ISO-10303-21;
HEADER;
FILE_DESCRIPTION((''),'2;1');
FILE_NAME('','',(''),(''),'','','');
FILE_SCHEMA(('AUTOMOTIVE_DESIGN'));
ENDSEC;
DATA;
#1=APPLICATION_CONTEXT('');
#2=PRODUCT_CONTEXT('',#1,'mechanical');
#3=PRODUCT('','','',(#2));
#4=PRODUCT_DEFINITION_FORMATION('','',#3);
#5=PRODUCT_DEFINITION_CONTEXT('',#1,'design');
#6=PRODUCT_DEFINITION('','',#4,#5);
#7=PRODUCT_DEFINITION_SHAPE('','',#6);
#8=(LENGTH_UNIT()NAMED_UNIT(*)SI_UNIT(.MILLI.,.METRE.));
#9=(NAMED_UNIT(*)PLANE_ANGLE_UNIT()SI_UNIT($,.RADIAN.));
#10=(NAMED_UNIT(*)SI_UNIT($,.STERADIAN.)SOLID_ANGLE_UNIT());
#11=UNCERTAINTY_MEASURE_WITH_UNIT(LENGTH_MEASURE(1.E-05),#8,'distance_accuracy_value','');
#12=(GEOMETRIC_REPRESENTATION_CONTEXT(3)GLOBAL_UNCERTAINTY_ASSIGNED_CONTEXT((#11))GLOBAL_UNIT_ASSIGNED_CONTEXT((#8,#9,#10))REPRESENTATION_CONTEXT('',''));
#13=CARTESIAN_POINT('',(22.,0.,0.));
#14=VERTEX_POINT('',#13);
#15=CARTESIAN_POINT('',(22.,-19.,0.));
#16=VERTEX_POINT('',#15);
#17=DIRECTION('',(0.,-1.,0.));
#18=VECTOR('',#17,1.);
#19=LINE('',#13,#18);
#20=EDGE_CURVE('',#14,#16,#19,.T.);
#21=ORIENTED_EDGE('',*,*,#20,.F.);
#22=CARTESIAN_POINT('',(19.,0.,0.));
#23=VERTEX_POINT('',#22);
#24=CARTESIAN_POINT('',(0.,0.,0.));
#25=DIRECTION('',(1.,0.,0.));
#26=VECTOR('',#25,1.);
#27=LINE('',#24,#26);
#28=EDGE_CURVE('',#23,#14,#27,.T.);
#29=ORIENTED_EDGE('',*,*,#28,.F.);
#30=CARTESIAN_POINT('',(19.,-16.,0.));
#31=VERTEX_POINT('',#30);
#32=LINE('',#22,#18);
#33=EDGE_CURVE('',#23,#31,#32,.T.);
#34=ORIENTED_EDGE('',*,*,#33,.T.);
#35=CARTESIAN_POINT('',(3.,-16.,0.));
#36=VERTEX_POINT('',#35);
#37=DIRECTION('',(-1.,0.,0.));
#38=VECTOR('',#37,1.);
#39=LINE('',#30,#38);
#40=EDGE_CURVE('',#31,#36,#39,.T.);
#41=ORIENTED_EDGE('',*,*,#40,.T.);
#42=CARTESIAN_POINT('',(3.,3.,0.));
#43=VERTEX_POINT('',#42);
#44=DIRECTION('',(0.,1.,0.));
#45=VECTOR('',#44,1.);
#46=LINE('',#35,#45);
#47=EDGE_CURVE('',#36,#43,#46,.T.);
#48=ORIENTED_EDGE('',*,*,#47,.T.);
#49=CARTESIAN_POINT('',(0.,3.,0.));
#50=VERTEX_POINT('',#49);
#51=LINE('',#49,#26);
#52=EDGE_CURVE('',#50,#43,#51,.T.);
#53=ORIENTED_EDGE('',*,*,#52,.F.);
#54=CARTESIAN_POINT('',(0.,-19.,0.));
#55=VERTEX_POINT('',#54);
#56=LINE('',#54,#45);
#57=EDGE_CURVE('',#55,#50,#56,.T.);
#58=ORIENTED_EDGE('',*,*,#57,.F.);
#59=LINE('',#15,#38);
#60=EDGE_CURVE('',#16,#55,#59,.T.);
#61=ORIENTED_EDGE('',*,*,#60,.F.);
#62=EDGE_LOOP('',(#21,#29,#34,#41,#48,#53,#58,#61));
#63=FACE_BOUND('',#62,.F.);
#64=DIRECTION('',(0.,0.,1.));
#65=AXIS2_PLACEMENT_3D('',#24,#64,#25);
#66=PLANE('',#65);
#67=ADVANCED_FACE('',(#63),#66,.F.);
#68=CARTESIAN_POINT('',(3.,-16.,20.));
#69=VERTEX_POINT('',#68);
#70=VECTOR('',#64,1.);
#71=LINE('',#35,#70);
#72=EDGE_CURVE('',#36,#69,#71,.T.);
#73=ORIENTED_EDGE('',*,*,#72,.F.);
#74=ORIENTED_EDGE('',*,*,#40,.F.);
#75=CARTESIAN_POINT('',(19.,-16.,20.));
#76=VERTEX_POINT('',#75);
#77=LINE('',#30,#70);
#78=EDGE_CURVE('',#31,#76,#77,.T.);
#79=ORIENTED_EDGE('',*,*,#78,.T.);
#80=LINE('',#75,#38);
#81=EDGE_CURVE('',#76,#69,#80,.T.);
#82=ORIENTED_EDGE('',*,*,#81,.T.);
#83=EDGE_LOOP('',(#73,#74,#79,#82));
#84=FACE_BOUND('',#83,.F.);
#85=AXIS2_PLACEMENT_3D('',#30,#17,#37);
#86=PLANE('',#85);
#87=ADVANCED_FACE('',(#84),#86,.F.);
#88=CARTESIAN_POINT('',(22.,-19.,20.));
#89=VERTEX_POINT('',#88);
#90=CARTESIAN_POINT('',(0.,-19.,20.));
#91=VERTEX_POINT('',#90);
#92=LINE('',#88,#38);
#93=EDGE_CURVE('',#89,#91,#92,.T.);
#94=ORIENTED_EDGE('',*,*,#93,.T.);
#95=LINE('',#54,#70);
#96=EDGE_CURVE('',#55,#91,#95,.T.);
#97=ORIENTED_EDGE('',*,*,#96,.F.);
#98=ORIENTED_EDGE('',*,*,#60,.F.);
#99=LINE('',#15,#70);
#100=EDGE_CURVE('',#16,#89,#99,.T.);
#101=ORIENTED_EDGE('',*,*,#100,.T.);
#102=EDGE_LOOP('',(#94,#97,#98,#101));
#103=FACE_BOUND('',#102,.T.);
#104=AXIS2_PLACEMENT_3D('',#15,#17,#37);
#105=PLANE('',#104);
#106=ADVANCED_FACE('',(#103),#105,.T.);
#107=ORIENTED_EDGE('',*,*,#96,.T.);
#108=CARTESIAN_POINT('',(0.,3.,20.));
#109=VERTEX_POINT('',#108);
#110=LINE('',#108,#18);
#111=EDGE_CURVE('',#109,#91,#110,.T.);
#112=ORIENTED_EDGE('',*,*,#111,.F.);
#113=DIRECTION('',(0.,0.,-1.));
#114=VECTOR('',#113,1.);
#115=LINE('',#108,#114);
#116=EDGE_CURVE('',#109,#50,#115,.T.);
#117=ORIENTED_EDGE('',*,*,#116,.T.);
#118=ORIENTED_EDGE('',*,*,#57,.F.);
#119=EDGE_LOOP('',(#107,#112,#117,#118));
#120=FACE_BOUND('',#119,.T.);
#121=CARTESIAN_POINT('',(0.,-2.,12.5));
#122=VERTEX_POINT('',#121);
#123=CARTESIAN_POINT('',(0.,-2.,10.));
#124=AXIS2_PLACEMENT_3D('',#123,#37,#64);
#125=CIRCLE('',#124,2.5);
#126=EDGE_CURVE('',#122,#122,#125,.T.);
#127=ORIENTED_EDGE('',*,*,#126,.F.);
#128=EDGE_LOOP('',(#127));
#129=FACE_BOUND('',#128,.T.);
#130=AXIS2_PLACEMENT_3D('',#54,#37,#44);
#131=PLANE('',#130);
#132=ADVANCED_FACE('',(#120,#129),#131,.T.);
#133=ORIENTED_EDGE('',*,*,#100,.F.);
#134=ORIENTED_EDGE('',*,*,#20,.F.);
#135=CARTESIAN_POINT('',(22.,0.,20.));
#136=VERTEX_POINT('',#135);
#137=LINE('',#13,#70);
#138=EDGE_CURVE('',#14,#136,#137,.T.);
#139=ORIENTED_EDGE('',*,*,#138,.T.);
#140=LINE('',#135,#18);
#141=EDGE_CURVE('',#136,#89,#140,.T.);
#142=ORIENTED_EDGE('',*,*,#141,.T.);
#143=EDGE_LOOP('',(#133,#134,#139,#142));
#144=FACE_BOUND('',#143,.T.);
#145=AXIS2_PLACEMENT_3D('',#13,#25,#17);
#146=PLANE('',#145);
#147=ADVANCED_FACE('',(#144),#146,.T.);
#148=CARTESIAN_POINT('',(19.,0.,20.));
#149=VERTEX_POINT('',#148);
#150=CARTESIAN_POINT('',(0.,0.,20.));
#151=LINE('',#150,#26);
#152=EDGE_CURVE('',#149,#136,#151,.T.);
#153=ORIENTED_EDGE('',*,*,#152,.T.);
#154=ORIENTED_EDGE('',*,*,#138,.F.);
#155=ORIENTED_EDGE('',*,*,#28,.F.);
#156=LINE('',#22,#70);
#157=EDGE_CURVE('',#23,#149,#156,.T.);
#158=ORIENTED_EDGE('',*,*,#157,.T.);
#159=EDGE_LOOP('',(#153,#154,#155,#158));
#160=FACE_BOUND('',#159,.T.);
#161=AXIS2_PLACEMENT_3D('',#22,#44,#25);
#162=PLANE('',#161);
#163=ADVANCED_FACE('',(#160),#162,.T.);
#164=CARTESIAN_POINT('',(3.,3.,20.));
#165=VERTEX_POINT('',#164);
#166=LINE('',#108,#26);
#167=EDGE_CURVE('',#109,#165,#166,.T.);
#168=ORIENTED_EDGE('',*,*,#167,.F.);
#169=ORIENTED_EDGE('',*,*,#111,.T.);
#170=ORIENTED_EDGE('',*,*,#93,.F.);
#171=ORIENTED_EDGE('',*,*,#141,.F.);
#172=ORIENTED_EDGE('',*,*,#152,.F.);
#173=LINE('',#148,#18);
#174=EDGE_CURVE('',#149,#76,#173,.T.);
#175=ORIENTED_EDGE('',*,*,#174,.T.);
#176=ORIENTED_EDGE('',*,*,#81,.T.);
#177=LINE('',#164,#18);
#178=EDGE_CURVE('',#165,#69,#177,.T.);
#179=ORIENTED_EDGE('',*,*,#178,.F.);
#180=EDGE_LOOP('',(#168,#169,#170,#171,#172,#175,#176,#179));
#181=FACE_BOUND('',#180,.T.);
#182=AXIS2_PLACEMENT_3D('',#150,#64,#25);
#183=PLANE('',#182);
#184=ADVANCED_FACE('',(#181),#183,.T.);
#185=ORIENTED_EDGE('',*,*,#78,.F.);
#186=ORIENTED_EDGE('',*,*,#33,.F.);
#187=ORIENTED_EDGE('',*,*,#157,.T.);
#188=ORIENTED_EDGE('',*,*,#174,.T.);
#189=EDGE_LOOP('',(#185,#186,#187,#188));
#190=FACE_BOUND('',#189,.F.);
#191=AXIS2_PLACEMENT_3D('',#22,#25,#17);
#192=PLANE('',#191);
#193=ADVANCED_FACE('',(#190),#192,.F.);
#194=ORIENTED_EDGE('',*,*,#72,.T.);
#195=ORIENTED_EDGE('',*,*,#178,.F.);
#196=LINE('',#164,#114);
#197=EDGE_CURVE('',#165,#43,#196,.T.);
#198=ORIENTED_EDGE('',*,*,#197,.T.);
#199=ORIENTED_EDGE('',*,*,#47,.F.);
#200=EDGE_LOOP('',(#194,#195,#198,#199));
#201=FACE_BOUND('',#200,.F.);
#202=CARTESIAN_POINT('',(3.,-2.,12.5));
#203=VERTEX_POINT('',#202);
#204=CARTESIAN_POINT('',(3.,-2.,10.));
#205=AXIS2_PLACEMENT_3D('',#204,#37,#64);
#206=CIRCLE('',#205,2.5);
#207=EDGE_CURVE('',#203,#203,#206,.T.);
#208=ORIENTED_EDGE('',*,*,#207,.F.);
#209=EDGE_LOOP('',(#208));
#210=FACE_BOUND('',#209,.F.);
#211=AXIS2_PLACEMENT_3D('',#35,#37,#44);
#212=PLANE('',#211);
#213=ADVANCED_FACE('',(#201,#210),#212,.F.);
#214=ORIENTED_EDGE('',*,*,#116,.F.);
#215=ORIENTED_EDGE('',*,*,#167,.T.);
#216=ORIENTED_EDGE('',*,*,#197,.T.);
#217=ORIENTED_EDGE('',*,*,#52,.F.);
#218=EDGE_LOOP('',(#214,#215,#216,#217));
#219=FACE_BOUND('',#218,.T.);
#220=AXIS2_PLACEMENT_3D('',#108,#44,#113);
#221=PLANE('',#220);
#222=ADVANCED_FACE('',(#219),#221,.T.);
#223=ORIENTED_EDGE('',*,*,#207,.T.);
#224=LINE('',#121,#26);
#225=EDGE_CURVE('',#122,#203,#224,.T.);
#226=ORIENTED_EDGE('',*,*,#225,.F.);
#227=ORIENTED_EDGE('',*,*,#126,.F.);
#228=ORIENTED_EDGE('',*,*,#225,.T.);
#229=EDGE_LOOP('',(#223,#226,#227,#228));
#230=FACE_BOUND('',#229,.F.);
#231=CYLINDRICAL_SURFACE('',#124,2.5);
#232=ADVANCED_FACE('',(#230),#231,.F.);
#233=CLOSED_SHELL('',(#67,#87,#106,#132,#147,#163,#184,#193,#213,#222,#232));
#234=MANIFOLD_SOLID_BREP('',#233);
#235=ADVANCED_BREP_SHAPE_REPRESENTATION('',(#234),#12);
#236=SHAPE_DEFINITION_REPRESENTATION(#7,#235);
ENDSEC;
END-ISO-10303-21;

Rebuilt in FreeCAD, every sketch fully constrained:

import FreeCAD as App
import Part
import Sketcher

doc = App.newDocument("Part")
body = doc.addObject("PartDesign::Body", "Body")

sketch1 = body.newObject("Sketcher::SketchObject", "Sketch")
sketch1.AttachmentSupport = (doc.getObject("XY_Plane"), [""])
sketch1.MapMode = "FlatFace"
sketch1.addGeometry(Part.LineSegment(App.Vector(3, 0, 0), App.Vector(0, 0, 0)), False)
sketch1.addGeometry(Part.LineSegment(App.Vector(0, 0, 0), App.Vector(0, -19, 0)), False)
sketch1.addGeometry(Part.LineSegment(App.Vector(0, -19, 0), App.Vector(22, -19, 0)), False)
sketch1.addGeometry(Part.LineSegment(App.Vector(22, -19, 0), App.Vector(22, 0, 0)), False)
sketch1.addGeometry(Part.LineSegment(App.Vector(22, 0, 0), App.Vector(19, 0, 0)), False)
sketch1.addGeometry(Part.LineSegment(App.Vector(19, 0, 0), App.Vector(19, -16, 0)), False)
sketch1.addGeometry(Part.LineSegment(App.Vector(19, -16, 0), App.Vector(3, -16, 0)), False)
sketch1.addGeometry(Part.LineSegment(App.Vector(3, -16, 0), App.Vector(3, 0, 0)), False)
sketch1.addConstraint(Sketcher.Constraint("Coincident", 0, 2, 1, 1))
sketch1.addConstraint(Sketcher.Constraint("Coincident", 1, 2, 2, 1))
sketch1.addConstraint(Sketcher.Constraint("Coincident", 2, 2, 3, 1))
sketch1.addConstraint(Sketcher.Constraint("Coincident", 3, 2, 4, 1))
sketch1.addConstraint(Sketcher.Constraint("Coincident", 4, 2, 5, 1))
sketch1.addConstraint(Sketcher.Constraint("Coincident", 5, 2, 6, 1))
sketch1.addConstraint(Sketcher.Constraint("Coincident", 6, 2, 7, 1))
sketch1.addConstraint(Sketcher.Constraint("Coincident", 7, 2, 0, 1))
sketch1.addConstraint(Sketcher.Constraint("Horizontal", 0))
sketch1.addConstraint(Sketcher.Constraint("Vertical", 1))
sketch1.addConstraint(Sketcher.Constraint("Horizontal", 2))
sketch1.addConstraint(Sketcher.Constraint("Vertical", 3))
sketch1.addConstraint(Sketcher.Constraint("Horizontal", 4))
sketch1.addConstraint(Sketcher.Constraint("Vertical", 5))
sketch1.addConstraint(Sketcher.Constraint("Horizontal", 6))
sketch1.addConstraint(Sketcher.Constraint("Vertical", 7))
sketch1.addConstraint(Sketcher.Constraint("Coincident", 0, 2, -1, 1))
sketch1.addConstraint(Sketcher.Constraint("PointOnObject", 3, 2, -1))
sketch1.addConstraint(Sketcher.Constraint("Equal", 0, 4))
sketch1.addConstraint(Sketcher.Constraint("Equal", 6, 5))
sketch1.addConstraint(Sketcher.Constraint("DistanceX", 0, 2, 0, 1, 3.0))
sketch1.addConstraint(Sketcher.Constraint("DistanceX", 2, 1, 2, 2, 22.0))
sketch1.addConstraint(Sketcher.Constraint("DistanceY", 1, 2, 1, 1, 19.0))
pad1 = body.newObject("PartDesign::Pad", "Pad")
pad1.Profile = sketch1
pad1.Length = 20

sketch2 = body.newObject("Sketcher::SketchObject", "Sketch001")
sketch2.AttachmentSupport = (doc.getObject("YZ_Plane"), [""])
sketch2.MapMode = "FlatFace"
sketch2.addGeometry(Part.LineSegment(App.Vector(3, 0, 0), App.Vector(0, 0, 0)), False)
sketch2.addGeometry(Part.LineSegment(App.Vector(0, 0, 0), App.Vector(0, 20, 0)), False)
sketch2.addGeometry(Part.LineSegment(App.Vector(0, 20, 0), App.Vector(3, 20, 0)), False)
sketch2.addGeometry(Part.LineSegment(App.Vector(3, 20, 0), App.Vector(3, 0, 0)), False)
sketch2.addConstraint(Sketcher.Constraint("Coincident", 0, 2, 1, 1))
sketch2.addConstraint(Sketcher.Constraint("Coincident", 1, 2, 2, 1))
sketch2.addConstraint(Sketcher.Constraint("Coincident", 2, 2, 3, 1))
sketch2.addConstraint(Sketcher.Constraint("Coincident", 3, 2, 0, 1))
sketch2.addConstraint(Sketcher.Constraint("Horizontal", 0))
sketch2.addConstraint(Sketcher.Constraint("Vertical", 1))
sketch2.addConstraint(Sketcher.Constraint("Horizontal", 2))
sketch2.addConstraint(Sketcher.Constraint("Vertical", 3))
sketch2.addConstraint(Sketcher.Constraint("Coincident", 0, 2, -1, 1))
sketch2.addConstraint(Sketcher.Constraint("DistanceX", 0, 2, 0, 1, 3.0))
sketch2.addConstraint(Sketcher.Constraint("DistanceY", 1, 1, 1, 2, 20.0))
pad2 = body.newObject("PartDesign::Pad", "Pad001")
pad2.Profile = sketch2
pad2.Length = 3

sketch3 = body.newObject("Sketcher::SketchObject", "Sketch002")
sketch3.AttachmentSupport = (doc.getObject("YZ_Plane"), [""])
sketch3.MapMode = "FlatFace"
sketch3.addGeometry(Part.Circle(App.Vector(-2, 10, 0), App.Vector(0, 0, 1), 2.5), False)
sketch3.addConstraint(Sketcher.Constraint("Diameter", 0, 5.0))
sketch3.addConstraint(Sketcher.Constraint("DistanceY", -1, 1, 0, 3, 10.0))
sketch3.addConstraint(Sketcher.Constraint("DistanceX", 0, 3, -1, 1, 2.0))
pocket1 = body.newObject("PartDesign::Pocket", "Pocket")
pocket1.Profile = sketch3
pocket1.Length = 5
pocket1.Reversed = True

doc.recompute()
